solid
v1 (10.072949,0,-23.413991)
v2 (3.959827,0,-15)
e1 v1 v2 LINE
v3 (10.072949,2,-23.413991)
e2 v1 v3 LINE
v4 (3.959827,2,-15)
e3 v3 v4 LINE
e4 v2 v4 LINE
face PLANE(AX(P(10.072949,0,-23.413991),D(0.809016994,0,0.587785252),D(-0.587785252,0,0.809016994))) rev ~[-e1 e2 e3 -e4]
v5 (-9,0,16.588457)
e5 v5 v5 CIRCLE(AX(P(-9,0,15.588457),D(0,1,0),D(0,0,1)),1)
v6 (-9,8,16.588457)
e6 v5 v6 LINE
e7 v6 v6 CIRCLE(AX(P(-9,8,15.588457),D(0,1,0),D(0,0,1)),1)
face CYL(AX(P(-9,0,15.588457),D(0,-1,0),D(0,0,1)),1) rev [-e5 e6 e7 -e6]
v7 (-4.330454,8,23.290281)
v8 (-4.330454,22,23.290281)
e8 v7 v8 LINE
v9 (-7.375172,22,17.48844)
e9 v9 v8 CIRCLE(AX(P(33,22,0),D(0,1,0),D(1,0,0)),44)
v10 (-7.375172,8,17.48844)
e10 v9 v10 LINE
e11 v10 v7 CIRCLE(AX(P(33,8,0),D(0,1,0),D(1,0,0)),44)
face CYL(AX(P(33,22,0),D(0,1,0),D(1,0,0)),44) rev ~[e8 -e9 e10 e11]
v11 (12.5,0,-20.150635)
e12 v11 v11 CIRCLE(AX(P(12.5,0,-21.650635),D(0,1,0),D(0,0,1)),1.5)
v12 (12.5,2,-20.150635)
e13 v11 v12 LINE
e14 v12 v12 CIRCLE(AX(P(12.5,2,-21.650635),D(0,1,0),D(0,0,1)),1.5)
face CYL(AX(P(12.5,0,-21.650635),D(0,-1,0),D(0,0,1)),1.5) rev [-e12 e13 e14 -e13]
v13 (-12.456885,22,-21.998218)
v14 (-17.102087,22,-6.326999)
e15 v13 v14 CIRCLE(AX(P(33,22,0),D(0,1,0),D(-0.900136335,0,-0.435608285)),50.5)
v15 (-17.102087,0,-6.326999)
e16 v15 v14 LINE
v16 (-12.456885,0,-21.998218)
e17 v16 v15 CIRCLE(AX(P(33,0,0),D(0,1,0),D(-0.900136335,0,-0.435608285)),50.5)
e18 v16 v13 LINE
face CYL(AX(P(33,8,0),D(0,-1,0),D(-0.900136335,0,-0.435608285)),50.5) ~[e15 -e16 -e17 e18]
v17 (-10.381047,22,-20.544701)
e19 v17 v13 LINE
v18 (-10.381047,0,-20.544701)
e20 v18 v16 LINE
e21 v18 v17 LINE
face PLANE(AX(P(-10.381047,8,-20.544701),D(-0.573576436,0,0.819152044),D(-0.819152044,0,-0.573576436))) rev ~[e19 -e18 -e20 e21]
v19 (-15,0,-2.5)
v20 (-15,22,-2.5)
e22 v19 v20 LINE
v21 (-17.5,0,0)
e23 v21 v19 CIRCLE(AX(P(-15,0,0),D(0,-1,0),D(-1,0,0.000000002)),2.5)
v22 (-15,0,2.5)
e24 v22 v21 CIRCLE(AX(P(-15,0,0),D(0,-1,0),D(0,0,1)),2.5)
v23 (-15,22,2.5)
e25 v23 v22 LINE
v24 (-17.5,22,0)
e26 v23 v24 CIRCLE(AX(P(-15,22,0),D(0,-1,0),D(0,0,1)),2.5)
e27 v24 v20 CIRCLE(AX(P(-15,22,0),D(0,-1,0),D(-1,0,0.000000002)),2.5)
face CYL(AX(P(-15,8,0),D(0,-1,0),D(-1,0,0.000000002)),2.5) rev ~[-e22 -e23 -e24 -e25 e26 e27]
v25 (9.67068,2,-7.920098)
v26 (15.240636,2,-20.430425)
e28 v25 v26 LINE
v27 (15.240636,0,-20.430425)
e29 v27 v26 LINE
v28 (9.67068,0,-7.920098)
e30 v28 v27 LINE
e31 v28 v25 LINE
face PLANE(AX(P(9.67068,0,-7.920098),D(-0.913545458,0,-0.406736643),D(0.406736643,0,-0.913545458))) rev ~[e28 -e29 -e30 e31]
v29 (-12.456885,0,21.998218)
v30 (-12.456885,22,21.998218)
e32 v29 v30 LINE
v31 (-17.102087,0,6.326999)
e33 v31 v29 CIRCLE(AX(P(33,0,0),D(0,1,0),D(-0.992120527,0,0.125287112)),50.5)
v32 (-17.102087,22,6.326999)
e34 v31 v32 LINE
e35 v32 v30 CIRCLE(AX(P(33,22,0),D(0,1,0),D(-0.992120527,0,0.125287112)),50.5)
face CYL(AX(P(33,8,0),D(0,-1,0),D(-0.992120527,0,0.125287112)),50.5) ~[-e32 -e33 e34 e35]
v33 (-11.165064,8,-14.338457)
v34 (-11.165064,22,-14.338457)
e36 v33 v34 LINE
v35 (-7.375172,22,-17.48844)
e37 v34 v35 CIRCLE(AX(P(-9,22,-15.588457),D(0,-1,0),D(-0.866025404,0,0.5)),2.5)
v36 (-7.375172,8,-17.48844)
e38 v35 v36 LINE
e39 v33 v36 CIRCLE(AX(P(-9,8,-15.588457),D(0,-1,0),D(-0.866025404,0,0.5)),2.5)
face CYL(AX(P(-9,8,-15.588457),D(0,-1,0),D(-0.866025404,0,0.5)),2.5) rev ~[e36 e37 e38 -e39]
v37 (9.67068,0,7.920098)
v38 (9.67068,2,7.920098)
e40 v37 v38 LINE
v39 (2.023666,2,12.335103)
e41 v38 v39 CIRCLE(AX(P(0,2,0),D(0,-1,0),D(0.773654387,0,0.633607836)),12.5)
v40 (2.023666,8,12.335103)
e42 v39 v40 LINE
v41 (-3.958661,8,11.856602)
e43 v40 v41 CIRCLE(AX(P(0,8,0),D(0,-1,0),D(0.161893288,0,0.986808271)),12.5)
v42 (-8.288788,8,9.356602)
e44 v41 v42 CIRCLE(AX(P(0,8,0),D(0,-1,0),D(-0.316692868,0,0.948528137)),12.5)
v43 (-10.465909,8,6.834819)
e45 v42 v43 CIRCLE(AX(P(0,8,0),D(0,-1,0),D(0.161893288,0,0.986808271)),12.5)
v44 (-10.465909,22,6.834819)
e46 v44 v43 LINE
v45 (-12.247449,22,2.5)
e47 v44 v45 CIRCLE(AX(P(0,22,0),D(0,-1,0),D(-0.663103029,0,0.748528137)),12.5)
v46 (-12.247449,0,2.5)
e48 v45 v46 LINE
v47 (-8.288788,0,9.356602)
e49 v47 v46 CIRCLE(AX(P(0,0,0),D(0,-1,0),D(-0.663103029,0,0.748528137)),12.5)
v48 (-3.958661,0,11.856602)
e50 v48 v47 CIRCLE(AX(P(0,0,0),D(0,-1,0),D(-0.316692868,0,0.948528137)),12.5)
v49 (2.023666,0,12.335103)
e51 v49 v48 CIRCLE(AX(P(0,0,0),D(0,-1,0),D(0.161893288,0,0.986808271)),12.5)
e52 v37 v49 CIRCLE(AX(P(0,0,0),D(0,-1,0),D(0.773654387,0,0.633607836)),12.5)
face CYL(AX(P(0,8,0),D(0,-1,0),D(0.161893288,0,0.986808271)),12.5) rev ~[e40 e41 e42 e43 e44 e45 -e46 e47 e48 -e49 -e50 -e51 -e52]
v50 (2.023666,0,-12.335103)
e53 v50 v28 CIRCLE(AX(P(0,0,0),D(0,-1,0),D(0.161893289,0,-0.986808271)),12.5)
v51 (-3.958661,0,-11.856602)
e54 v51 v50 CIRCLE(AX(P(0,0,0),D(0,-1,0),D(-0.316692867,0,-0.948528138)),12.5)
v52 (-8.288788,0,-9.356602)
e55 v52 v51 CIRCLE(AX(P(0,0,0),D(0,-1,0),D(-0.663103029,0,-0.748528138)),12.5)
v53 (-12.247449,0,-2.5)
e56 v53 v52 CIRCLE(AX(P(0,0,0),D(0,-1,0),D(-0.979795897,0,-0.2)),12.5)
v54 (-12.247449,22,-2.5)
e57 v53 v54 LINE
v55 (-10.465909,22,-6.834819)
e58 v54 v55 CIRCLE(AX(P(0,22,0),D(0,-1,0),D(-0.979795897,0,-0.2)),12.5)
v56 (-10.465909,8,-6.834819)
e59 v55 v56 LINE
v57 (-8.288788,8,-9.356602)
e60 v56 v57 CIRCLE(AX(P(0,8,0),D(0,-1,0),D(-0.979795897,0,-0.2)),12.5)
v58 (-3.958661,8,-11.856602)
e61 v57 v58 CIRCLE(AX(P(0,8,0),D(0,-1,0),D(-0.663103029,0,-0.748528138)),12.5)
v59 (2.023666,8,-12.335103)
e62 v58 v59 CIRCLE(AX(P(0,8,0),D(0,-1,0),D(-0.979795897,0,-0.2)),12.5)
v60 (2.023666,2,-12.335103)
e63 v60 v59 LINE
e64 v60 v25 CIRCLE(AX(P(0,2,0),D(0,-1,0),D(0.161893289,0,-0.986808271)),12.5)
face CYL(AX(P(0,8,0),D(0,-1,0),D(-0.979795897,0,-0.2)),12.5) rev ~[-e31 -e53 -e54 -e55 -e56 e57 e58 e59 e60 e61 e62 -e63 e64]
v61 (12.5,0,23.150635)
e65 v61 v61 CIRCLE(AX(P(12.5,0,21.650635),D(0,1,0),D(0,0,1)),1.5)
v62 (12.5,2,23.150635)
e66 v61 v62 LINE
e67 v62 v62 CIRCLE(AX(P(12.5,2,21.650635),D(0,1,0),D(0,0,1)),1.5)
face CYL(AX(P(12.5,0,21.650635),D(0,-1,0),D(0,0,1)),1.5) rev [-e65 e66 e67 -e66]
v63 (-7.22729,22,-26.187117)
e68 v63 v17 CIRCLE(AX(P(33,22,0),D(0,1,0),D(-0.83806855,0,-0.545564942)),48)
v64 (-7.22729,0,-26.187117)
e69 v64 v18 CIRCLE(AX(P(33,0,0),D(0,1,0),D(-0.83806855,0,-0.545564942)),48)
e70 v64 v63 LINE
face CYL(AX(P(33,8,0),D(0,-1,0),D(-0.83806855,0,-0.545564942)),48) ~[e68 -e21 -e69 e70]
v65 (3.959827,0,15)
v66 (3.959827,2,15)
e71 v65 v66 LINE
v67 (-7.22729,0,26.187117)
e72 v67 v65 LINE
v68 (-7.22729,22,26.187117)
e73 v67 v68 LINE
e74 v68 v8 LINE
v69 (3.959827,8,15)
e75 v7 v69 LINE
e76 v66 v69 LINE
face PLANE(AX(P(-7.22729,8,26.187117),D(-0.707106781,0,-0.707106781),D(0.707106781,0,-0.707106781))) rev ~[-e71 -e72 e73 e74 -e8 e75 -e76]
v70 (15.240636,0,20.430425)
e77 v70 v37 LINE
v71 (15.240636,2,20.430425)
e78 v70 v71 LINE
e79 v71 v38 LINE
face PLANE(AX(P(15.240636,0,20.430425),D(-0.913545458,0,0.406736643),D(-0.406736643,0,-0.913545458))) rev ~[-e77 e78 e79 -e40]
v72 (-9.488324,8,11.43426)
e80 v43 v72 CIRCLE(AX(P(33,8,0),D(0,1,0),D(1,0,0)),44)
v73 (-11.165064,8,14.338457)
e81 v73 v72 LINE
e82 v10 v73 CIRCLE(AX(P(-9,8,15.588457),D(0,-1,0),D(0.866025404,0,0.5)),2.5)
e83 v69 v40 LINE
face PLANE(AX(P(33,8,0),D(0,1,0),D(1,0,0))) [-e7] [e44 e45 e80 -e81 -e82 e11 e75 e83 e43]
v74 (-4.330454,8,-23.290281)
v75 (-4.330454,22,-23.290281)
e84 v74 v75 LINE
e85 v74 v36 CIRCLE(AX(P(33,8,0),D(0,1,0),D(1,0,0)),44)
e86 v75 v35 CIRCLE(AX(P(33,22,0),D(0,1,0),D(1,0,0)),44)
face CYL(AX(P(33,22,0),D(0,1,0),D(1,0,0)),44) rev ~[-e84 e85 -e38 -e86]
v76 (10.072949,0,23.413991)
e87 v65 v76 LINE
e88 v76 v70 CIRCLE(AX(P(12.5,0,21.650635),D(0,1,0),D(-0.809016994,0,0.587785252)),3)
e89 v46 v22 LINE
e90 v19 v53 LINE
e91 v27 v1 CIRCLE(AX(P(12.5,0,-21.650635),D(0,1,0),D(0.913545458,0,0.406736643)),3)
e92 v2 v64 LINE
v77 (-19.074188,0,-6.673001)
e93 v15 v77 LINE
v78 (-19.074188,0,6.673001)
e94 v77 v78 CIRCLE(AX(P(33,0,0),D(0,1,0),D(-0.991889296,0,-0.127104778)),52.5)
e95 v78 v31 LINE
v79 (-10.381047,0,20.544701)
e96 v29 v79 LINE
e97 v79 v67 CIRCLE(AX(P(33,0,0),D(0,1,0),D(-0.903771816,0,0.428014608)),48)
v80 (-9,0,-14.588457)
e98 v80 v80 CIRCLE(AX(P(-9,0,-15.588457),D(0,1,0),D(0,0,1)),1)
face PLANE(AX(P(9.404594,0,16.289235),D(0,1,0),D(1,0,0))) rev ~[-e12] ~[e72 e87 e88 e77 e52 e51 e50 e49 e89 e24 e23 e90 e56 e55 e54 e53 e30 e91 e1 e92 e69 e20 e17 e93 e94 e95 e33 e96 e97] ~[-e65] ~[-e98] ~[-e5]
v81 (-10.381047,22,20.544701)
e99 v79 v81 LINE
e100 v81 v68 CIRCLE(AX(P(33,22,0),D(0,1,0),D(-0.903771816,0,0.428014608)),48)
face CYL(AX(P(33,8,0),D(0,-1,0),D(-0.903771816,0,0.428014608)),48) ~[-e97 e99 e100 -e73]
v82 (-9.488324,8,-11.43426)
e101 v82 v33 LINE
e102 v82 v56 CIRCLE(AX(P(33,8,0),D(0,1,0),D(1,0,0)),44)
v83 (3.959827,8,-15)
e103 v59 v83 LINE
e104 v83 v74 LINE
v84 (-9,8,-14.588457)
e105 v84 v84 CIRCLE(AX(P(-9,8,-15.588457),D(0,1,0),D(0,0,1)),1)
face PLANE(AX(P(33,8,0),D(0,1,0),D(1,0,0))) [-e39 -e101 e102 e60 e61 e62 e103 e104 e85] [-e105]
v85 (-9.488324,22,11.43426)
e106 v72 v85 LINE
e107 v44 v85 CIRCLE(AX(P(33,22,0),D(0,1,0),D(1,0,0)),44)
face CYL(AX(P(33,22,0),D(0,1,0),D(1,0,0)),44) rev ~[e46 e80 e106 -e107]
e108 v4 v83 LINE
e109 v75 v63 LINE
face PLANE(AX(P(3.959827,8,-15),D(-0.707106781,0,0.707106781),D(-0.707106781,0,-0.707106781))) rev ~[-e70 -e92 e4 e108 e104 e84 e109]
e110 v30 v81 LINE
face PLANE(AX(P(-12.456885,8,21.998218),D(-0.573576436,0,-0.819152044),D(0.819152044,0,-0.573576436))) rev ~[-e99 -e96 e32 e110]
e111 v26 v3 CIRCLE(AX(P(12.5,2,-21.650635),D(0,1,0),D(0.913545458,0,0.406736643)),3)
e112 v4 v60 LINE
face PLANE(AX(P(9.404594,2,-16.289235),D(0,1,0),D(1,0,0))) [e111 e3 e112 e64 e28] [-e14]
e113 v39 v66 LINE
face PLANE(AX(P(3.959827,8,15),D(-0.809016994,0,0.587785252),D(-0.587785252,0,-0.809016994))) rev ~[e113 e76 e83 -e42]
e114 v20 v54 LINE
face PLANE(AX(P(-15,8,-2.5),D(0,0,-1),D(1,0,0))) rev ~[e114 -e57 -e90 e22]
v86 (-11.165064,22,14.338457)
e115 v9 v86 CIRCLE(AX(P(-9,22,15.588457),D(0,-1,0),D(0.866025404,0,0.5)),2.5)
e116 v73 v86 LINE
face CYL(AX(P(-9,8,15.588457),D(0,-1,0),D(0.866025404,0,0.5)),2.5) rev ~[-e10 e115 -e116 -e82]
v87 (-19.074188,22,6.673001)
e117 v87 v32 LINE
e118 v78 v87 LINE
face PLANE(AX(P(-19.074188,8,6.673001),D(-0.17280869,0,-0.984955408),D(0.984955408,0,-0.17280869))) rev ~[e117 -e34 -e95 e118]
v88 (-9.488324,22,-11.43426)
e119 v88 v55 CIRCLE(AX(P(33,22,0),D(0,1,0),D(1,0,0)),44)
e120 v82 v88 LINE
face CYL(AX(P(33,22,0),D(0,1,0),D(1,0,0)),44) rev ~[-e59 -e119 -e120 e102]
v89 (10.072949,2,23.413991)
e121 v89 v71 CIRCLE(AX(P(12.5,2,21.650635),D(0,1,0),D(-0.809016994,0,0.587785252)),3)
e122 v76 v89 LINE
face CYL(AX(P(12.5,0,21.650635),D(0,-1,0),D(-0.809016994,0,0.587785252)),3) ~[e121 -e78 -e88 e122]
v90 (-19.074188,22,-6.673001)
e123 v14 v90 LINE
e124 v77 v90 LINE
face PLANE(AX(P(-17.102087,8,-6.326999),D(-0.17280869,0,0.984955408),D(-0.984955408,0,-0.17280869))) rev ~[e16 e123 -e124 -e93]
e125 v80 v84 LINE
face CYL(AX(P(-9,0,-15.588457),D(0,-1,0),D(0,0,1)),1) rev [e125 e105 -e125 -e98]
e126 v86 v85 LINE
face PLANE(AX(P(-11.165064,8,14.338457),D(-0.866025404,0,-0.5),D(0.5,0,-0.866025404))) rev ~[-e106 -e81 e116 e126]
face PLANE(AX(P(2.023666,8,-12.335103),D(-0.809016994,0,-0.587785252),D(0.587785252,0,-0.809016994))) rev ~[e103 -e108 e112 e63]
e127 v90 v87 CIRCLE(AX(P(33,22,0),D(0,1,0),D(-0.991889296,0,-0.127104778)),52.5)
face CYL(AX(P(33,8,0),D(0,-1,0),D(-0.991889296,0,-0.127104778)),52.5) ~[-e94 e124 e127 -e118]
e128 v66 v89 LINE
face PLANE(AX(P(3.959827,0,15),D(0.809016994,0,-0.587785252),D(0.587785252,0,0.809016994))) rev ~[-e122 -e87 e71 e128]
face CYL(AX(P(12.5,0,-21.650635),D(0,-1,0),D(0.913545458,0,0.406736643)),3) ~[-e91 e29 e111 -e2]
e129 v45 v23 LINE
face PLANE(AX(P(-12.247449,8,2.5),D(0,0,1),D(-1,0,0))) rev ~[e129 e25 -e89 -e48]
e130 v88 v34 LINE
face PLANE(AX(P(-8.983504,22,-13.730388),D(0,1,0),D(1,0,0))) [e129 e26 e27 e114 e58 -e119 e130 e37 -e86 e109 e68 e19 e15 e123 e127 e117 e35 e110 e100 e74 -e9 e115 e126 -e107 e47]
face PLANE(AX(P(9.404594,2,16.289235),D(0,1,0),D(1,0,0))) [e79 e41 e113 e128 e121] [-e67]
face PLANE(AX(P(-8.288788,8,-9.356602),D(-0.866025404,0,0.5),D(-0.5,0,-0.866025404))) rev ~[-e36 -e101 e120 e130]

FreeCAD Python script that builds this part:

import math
import FreeCAD as App
import Part
import Sketcher
Q = App.Units.Quantity

doc = App.newDocument("Part")
body = doc.addObject("PartDesign::Body", "Body")

sketch1 = body.newObject("Sketcher::SketchObject", "Sketch")
sketch1.AttachmentSupport = (doc.getObject("XZ_Plane"), [""])
sketch1.MapMode = "FlatFace"
sketch1.addGeometry([
    Part.ArcOfCircle(Part.Circle(App.Vector(-15, 0, 0), App.Vector(0, 0, 1), 2.5), math.radians(90), math.radians(180)),
    Part.ArcOfCircle(Part.Circle(App.Vector(-15, 0, 0), App.Vector(0, 0, 1), 2.5), math.radians(180), math.radians(270)),
    Part.LineSegment(App.Vector(-15, -2.5, 0), App.Vector(-12.2, -2.5, 0)),
    Part.ArcOfCircle(Part.Circle(App.Vector(0, 0, 0), App.Vector(0, 0, 1), 12.5), math.radians(-168), math.radians(-132)),
    Part.ArcOfCircle(Part.Circle(App.Vector(0, 0, 0), App.Vector(0, 0, 1), 12.5), math.radians(-132), math.radians(-108)),
    Part.ArcOfCircle(Part.Circle(App.Vector(0, 0, 0), App.Vector(0, 0, 1), 12.5), math.radians(-108), math.radians(-81)),
    Part.LineSegment(App.Vector(2, -12.3, 0), App.Vector(4, -15, 0)),
    Part.LineSegment(App.Vector(4, -15, 0), App.Vector(-7.2, -26.2, 0)),
    Part.ArcOfCircle(Part.Circle(App.Vector(33, 0, 0), App.Vector(0, 0, 1), 48), math.radians(-154.66), math.radians(-146.94)),
    Part.LineSegment(App.Vector(-10.4, -20.5, 0), App.Vector(-12.5, -22, 0)),
    Part.ArcOfCircle(Part.Circle(App.Vector(33, 0, 0), App.Vector(0, 0, 1), 50.5), math.radians(-172.8), math.radians(-154.18)),
    Part.LineSegment(App.Vector(-17.1, -6.3, 0), App.Vector(-19.1, -6.7, 0)),
    Part.ArcOfCircle(Part.Circle(App.Vector(33, 0, 0), App.Vector(0, 0, 1), 52.5), math.radians(172.7), math.radians(187.3)),
    Part.LineSegment(App.Vector(-19.1, 6.7, 0), App.Vector(-17.1, 6.3, 0)),
    Part.ArcOfCircle(Part.Circle(App.Vector(33, 0, 0), App.Vector(0, 0, 1), 50.5), math.radians(154.18), math.radians(172.8)),
    Part.LineSegment(App.Vector(-12.5, 22, 0), App.Vector(-10.4, 20.5, 0)),
    Part.ArcOfCircle(Part.Circle(App.Vector(33, 0, 0), App.Vector(0, 0, 1), 48), math.radians(146.94), math.radians(154.66)),
    Part.LineSegment(App.Vector(-7.2, 26.2, 0), App.Vector(4, 15, 0)),
    Part.LineSegment(App.Vector(4, 15, 0), App.Vector(2, 12.3, 0)),
    Part.ArcOfCircle(Part.Circle(App.Vector(0, 0, 0), App.Vector(0, 0, 1), 12.5), math.radians(81), math.radians(108)),
    Part.ArcOfCircle(Part.Circle(App.Vector(0, 0, 0), App.Vector(0, 0, 1), 12.5), math.radians(108), math.radians(132)),
    Part.ArcOfCircle(Part.Circle(App.Vector(0, 0, 0), App.Vector(0, 0, 1), 12.5), math.radians(132), math.radians(168)),
    Part.LineSegment(App.Vector(-12.2, 2.5, 0), App.Vector(-15, 2.5, 0)),
    Part.Circle(App.Vector(-9, 15.6, 0), App.Vector(0, 0, 1), 1),
    Part.Circle(App.Vector(-9, -15.6, 0), App.Vector(0, 0, 1), 1),
], False)
sketch1.addConstraint([
    Sketcher.Constraint("Tangent", 0, 2, 1, 1),
    Sketcher.Constraint("Tangent", 1, 2, 2, 1),
    Sketcher.Constraint("Coincident", 2, 2, 3, 1),
    Sketcher.Constraint("Tangent", 3, 2, 4, 1),
    Sketcher.Constraint("Tangent", 4, 2, 5, 1),
    Sketcher.Constraint("Coincident", 5, 2, 6, 1),
    Sketcher.Constraint("Coincident", 6, 2, 7, 1),
    Sketcher.Constraint("Coincident", 7, 2, 8, 2),
    Sketcher.Constraint("Coincident", 8, 1, 9, 1),
    Sketcher.Constraint("Coincident", 9, 2, 10, 2),
    Sketcher.Constraint("Coincident", 10, 1, 11, 1),
    Sketcher.Constraint("Coincident", 11, 2, 12, 2),
    Sketcher.Constraint("Coincident", 12, 1, 13, 1),
    Sketcher.Constraint("Coincident", 13, 2, 14, 2),
    Sketcher.Constraint("Coincident", 14, 1, 15, 1),
    Sketcher.Constraint("Coincident", 15, 2, 16, 2),
    Sketcher.Constraint("Coincident", 16, 1, 17, 1),
    Sketcher.Constraint("Coincident", 17, 2, 18, 1),
    Sketcher.Constraint("Coincident", 18, 2, 19, 1),
    Sketcher.Constraint("Tangent", 19, 2, 20, 1),
    Sketcher.Constraint("Tangent", 20, 2, 21, 1),
    Sketcher.Constraint("Coincident", 21, 2, 22, 1),
    Sketcher.Constraint("Tangent", 22, 2, 0, 1),
    Sketcher.Constraint("Horizontal", 2),
    Sketcher.Constraint("Horizontal", 22),
    Sketcher.Constraint("Coincident", 3, 3, -1, 1),
    Sketcher.Constraint("Coincident", 5, 3, -1, 1),
    Sketcher.Constraint("Coincident", 19, 3, -1, 1),
    Sketcher.Constraint("Coincident", 21, 3, -1, 1),
    Sketcher.Constraint("Coincident", 10, 3, 8, 3),
    Sketcher.Constraint("Coincident", 12, 3, 8, 3),
    Sketcher.Constraint("Coincident", 14, 3, 8, 3),
    Sketcher.Constraint("Coincident", 16, 3, 8, 3),
    Sketcher.Constraint("Equal", 0, 1),
    Sketcher.Constraint("Equal", 10, 14),
    Sketcher.Constraint("Equal", 8, 16),
    Sketcher.Constraint("Equal", 5, 19),
    Sketcher.Constraint("Equal", 23, 24),
    Sketcher.Constraint("Symmetric", 23, 3, 24, 3, -1),
    Sketcher.Constraint("Symmetric", 11, 2, 12, 1, -1),
    Sketcher.Constraint("Symmetric", 6, 2, 17, 2, -1),
    Sketcher.Constraint("PointOnObject", 0, 3, -1),
    Sketcher.Constraint("PointOnObject", 0, 2, -1),
    Sketcher.Constraint("Perpendicular", 7, 17),
    Sketcher.Constraint("Vertical", 10, 1, 13, 2),
    Sketcher.Constraint("Vertical", 9, 2, 14, 1),
    Sketcher.Constraint("Vertical", 8, 1, 15, 2),
    Sketcher.Constraint("Vertical", 7, 2, 16, 1),
    Sketcher.Constraint("Vertical", 5, 2, 18, 2),
    Sketcher.Constraint("Vertical", 4, 2, 19, 2),
    Sketcher.Constraint("Vertical", 3, 2, 20, 2),
    Sketcher.Constraint("Diameter", 23, 2.0),
    Sketcher.Constraint("Radius", 8, 48.0),
    Sketcher.Constraint("Radius", 0, 2.5),
    Sketcher.Constraint("Radius", 3, 12.5),
    Sketcher.Constraint("Radius", 10, 50.5),
    Sketcher.Constraint("Radius", 12, 52.5),
    Sketcher.Constraint("Angle", 6, Q("-54 deg")),
    Sketcher.Constraint("Angle", 9, Q("-145 deg")),
    Sketcher.Constraint("DistanceX", 0, 3, -1, 1, 15.0),
    Sketcher.Constraint("DistanceX", -1, 1, 8, 3, 33.0),
    Sketcher.Constraint("DistanceX", 23, 3, -1, 1, 9.0),
    Sketcher.Constraint("DistanceY", 6, 2, -1, 1, 15.0),
    Sketcher.Constraint("DistanceY", 4, 2, 3, 2, 2.5),
    Sketcher.Constraint("DistanceY", 10, 1, -1, 1, 6.326999),
    Sketcher.Constraint("DistanceY", 11, 2, -1, 1, 6.673001),
    Sketcher.Constraint("DistanceY", 3, 2, -1, 1, 9.356602),
    Sketcher.Constraint("DistanceY", 8, 1, -1, 1, 20.544701),
    Sketcher.Constraint("DistanceY", 5, 2, 4, 2, 0.478502),
    Sketcher.Constraint("DistanceY", 7, 2, 24, 3, 10.59866),
])
pad1 = body.newObject("PartDesign::Pad", "Pad")
pad1.Profile = sketch1
pad1.Length = 8
pad1.Reversed = True

sketch2 = body.newObject("Sketcher::SketchObject", "Sketch001")
sketch2.AttachmentSupport = (doc.getObject("XZ_Plane"), [""])
sketch2.MapMode = "FlatFace"
sketch2.addGeometry([
    Part.LineSegment(App.Vector(15.2, 20.4, 0), App.Vector(9.7, 7.9, 0)),
    Part.ArcOfCircle(Part.Circle(App.Vector(0, 0, 0), App.Vector(0, 0, 1), 12.5), math.radians(39), math.radians(81)),
    Part.LineSegment(App.Vector(2, 12.3, 0), App.Vector(4, 15, 0)),
    Part.LineSegment(App.Vector(4, 15, 0), App.Vector(10.1, 23.4, 0)),
    Part.ArcOfCircle(Part.Circle(App.Vector(12.5, 21.7, 0), App.Vector(0, 0, 1), 3), math.radians(-24), math.radians(144)),
    Part.Circle(App.Vector(12.5, 21.7, 0), App.Vector(0, 0, 1), 1.5),
    Part.LineSegment(App.Vector(4, -15, 0), App.Vector(2, -12.3, 0)),
    Part.ArcOfCircle(Part.Circle(App.Vector(0, 0, 0), App.Vector(0, 0, 1), 12.5), math.radians(-81), math.radians(-39)),
    Part.LineSegment(App.Vector(9.7, -7.9, 0), App.Vector(15.2, -20.4, 0)),
    Part.ArcOfCircle(Part.Circle(App.Vector(12.5, -21.7, 0), App.Vector(0, 0, 1), 3), math.radians(-144), math.radians(24)),
    Part.LineSegment(App.Vector(10.1, -23.4, 0), App.Vector(4, -15, 0)),
    Part.Circle(App.Vector(12.5, -21.7, 0), App.Vector(0, 0, 1), 1.5),
], False)
sketch2.addConstraint([
    Sketcher.Constraint("Coincident", 0, 2, 1, 1),
    Sketcher.Constraint("Coincident", 1, 2, 2, 1),
    Sketcher.Constraint("Coincident", 2, 2, 3, 1),
    Sketcher.Constraint("Tangent", 3, 2, 4, 2),
    Sketcher.Constraint("Tangent", 4, 1, 0, 1),
    Sketcher.Constraint("Coincident", 6, 2, 7, 1),
    Sketcher.Constraint("Coincident", 7, 2, 8, 1),
    Sketcher.Constraint("Tangent", 8, 2, 9, 2),
    Sketcher.Constraint("Tangent", 9, 1, 10, 1),
    Sketcher.Constraint("Coincident", 10, 2, 6, 1),
    Sketcher.Constraint("Coincident", 1, 3, -1, 1),
    Sketcher.Constraint("Coincident", 7, 3, -1, 1),
    Sketcher.Constraint("Coincident", 5, 3, 4, 3),
    Sketcher.Constraint("Coincident", 11, 3, 9, 3),
    Sketcher.Constraint("Equal", 1, 7),
    Sketcher.Constraint("Equal", 4, 9),
    Sketcher.Constraint("Equal", 5, 11),
    Sketcher.Constraint("Symmetric", 4, 3, 9, 3, -1),
    Sketcher.Constraint("Symmetric", 2, 2, 10, 2, -1),
    Sketcher.Constraint("Parallel", 2, 3),
    Sketcher.Constraint("Parallel", 6, 10),
    Sketcher.Constraint("Vertical", 0, 2, 7, 2),
    Sketcher.Constraint("Diameter", 5, 3.0),
    Sketcher.Constraint("Radius", 4, 3.0),
    Sketcher.Constraint("Radius", 1, 12.5),
    Sketcher.Constraint("Angle", 0, Q("-114 deg")),
    Sketcher.Constraint("Angle", 2, Q("54 deg")),
    Sketcher.Constraint("DistanceY", -1, 1, 2, 2, 15.0),
    Sketcher.Constraint("DistanceX", -1, 1, 4, 3, 12.5),
    Sketcher.Constraint("DistanceY", 6, 2, 0, 2, 20.255201),
])
pad2 = body.newObject("PartDesign::Pad", "Pad001")
pad2.Profile = sketch2
pad2.Length = 2
pad2.Reversed = True

sketch3 = body.newObject("Sketcher::SketchObject", "Sketch002")
sketch3.AttachmentSupport = (doc.getObject("XZ_Plane"), [""])
sketch3.MapMode = "FlatFace"
sketch3.addGeometry([
    Part.LineSegment(App.Vector(15.2, 20.4, 0), App.Vector(9.7, 7.9, 0)),
    Part.ArcOfCircle(Part.Circle(App.Vector(0, 0, 0), App.Vector(0, 0, 1), 12.5), math.radians(39), math.radians(81)),
    Part.LineSegment(App.Vector(2, 12.3, 0), App.Vector(4, 15, 0)),
    Part.LineSegment(App.Vector(4, 15, 0), App.Vector(10.1, 23.4, 0)),
    Part.ArcOfCircle(Part.Circle(App.Vector(12.5, 21.7, 0), App.Vector(0, 0, 1), 3), math.radians(-24), math.radians(144)),
    Part.Circle(App.Vector(12.5, 21.7, 0), App.Vector(0, 0, 1), 1.5),
    Part.LineSegment(App.Vector(4, -15, 0), App.Vector(2, -12.3, 0)),
    Part.ArcOfCircle(Part.Circle(App.Vector(0, 0, 0), App.Vector(0, 0, 1), 12.5), math.radians(-81), math.radians(-39)),
    Part.LineSegment(App.Vector(9.7, -7.9, 0), App.Vector(15.2, -20.4, 0)),
    Part.ArcOfCircle(Part.Circle(App.Vector(12.5, -21.7, 0), App.Vector(0, 0, 1), 3), math.radians(-144), math.radians(24)),
    Part.LineSegment(App.Vector(10.1, -23.4, 0), App.Vector(4, -15, 0)),
    Part.Circle(App.Vector(12.5, -21.7, 0), App.Vector(0, 0, 1), 1.5),
], False)
sketch3.addConstraint([
    Sketcher.Constraint("Coincident", 0, 2, 1, 1),
    Sketcher.Constraint("Coincident", 1, 2, 2, 1),
    Sketcher.Constraint("Coincident", 2, 2, 3, 1),
    Sketcher.Constraint("Tangent", 3, 2, 4, 2),
    Sketcher.Constraint("Tangent", 4, 1, 0, 1),
    Sketcher.Constraint("Coincident", 6, 2, 7, 1),
    Sketcher.Constraint("Coincident", 7, 2, 8, 1),
    Sketcher.Constraint("Tangent", 8, 2, 9, 2),
    Sketcher.Constraint("Tangent", 9, 1, 10, 1),
    Sketcher.Constraint("Coincident", 10, 2, 6, 1),
    Sketcher.Constraint("Coincident", 1, 3, -1, 1),
    Sketcher.Constraint("Coincident", 7, 3, -1, 1),
    Sketcher.Constraint("Coincident", 5, 3, 4, 3),
    Sketcher.Constraint("Coincident", 11, 3, 9, 3),
    Sketcher.Constraint("Equal", 1, 7),
    Sketcher.Constraint("Equal", 4, 9),
    Sketcher.Constraint("Equal", 5, 11),
    Sketcher.Constraint("Symmetric", 4, 3, 9, 3, -1),
    Sketcher.Constraint("Symmetric", 2, 2, 10, 2, -1),
    Sketcher.Constraint("Parallel", 2, 3),
    Sketcher.Constraint("Parallel", 6, 10),
    Sketcher.Constraint("Vertical", 0, 2, 7, 2),
    Sketcher.Constraint("Diameter", 5, 3.0),
    Sketcher.Constraint("Radius", 4, 3.0),
    Sketcher.Constraint("Radius", 1, 12.5),
    Sketcher.Constraint("Angle", 0, Q("-114 deg")),
    Sketcher.Constraint("Angle", 2, Q("54 deg")),
    Sketcher.Constraint("DistanceY", -1, 1, 2, 2, 15.0),
    Sketcher.Constraint("DistanceX", -1, 1, 4, 3, 12.5),
    Sketcher.Constraint("DistanceY", 6, 2, 0, 2, 20.255201),
])
pad3 = body.newObject("PartDesign::Pad", "Pad002")
pad3.Profile = sketch3
pad3.Length = 2
pad3.Reversed = True

sketch4 = body.newObject("Sketcher::SketchObject", "Sketch003")
sketch4.AttachmentSupport = (doc.getObject("XZ_Plane"), [""])
sketch4.MapMode = "FlatFace"
sketch4.AttachmentOffset = App.Placement(App.Vector(0, 0, -8), App.Rotation())
sketch4.addGeometry([
    Part.ArcOfCircle(Part.Circle(App.Vector(-15, 0, 0), App.Vector(0, 0, 1), 2.5), math.radians(180), math.radians(270)),
    Part.LineSegment(App.Vector(-15, -2.5, 0), App.Vector(-12.2, -2.5, 0)),
    Part.ArcOfCircle(Part.Circle(App.Vector(0, 0, 0), App.Vector(0, 0, 1), 12.5), math.radians(-168), math.radians(-132)),
    Part.LineSegment(App.Vector(-8.3, -9.4, 0), App.Vector(-11.2, -14.3, 0)),
    Part.ArcOfCircle(Part.Circle(App.Vector(-9, -15.6, 0), App.Vector(0, 0, 1), 2.5), math.radians(150), math.radians(330)),
    Part.LineSegment(App.Vector(-6.8, -16.8, 0), App.Vector(-4, -11.9, 0)),
    Part.ArcOfCircle(Part.Circle(App.Vector(0, 0, 0), App.Vector(0, 0, 1), 12.5), math.radians(-108), math.radians(-81)),
    Part.LineSegment(App.Vector(2, -12.3, 0), App.Vector(4, -15, 0)),
    Part.LineSegment(App.Vector(4, -15, 0), App.Vector(-7.2, -26.2, 0)),
    Part.ArcOfCircle(Part.Circle(App.Vector(33, 0, 0), App.Vector(0, 0, 1), 48), math.radians(-154.66), math.radians(-146.94)),
    Part.LineSegment(App.Vector(-10.4, -20.5, 0), App.Vector(-12.5, -22, 0)),
    Part.ArcOfCircle(Part.Circle(App.Vector(33, 0, 0), App.Vector(0, 0, 1), 50.5), math.radians(-172.8), math.radians(-154.18)),
    Part.LineSegment(App.Vector(-17.1, -6.3, 0), App.Vector(-19.1, -6.7, 0)),
    Part.ArcOfCircle(Part.Circle(App.Vector(33, 0, 0), App.Vector(0, 0, 1), 52.5), math.radians(172.7), math.radians(187.3)),
    Part.LineSegment(App.Vector(-19.1, 6.7, 0), App.Vector(-17.1, 6.3, 0)),
    Part.ArcOfCircle(Part.Circle(App.Vector(33, 0, 0), App.Vector(0, 0, 1), 50.5), math.radians(154.18), math.radians(172.8)),
    Part.LineSegment(App.Vector(-12.5, 22, 0), App.Vector(-10.4, 20.5, 0)),
    Part.ArcOfCircle(Part.Circle(App.Vector(33, 0, 0), App.Vector(0, 0, 1), 48), math.radians(146.94), math.radians(154.66)),
    Part.LineSegment(App.Vector(-7.2, 26.2, 0), App.Vector(4, 15, 0)),
    Part.LineSegment(App.Vector(4, 15, 0), App.Vector(2, 12.3, 0)),
    Part.ArcOfCircle(Part.Circle(App.Vector(0, 0, 0), App.Vector(0, 0, 1), 12.5), math.radians(81), math.radians(108)),
    Part.LineSegment(App.Vector(-4, 11.9, 0), App.Vector(-6.8, 16.8, 0)),
    Part.ArcOfCircle(Part.Circle(App.Vector(-9, 15.6, 0), App.Vector(0, 0, 1), 2.5), math.radians(30), math.radians(210)),
    Part.LineSegment(App.Vector(-11.2, 14.3, 0), App.Vector(-8.3, 9.4, 0)),
    Part.ArcOfCircle(Part.Circle(App.Vector(0, 0, 0), App.Vector(0, 0, 1), 12.5), math.radians(132), math.radians(168)),
    Part.LineSegment(App.Vector(-12.2, 2.5, 0), App.Vector(-15, 2.5, 0)),
    Part.ArcOfCircle(Part.Circle(App.Vector(-15, 0, 0), App.Vector(0, 0, 1), 2.5), math.radians(90), math.radians(180)),
], False)
sketch4.addConstraint([
    Sketcher.Constraint("Tangent", 0, 2, 1, 1),
    Sketcher.Constraint("Coincident", 1, 2, 2, 1),
    Sketcher.Constraint("Coincident", 2, 2, 3, 1),
    Sketcher.Constraint("Tangent", 3, 2, 4, 1),
    Sketcher.Constraint("Tangent", 4, 2, 5, 1),
    Sketcher.Constraint("Coincident", 5, 2, 6, 1),
    Sketcher.Constraint("Coincident", 6, 2, 7, 1),
    Sketcher.Constraint("Coincident", 7, 2, 8, 1),
    Sketcher.Constraint("Coincident", 8, 2, 9, 2),
    Sketcher.Constraint("Coincident", 9, 1, 10, 1),
    Sketcher.Constraint("Coincident", 10, 2, 11, 2),
    Sketcher.Constraint("Coincident", 11, 1, 12, 1),
    Sketcher.Constraint("Coincident", 12, 2, 13, 2),
    Sketcher.Constraint("Coincident", 13, 1, 14, 1),
    Sketcher.Constraint("Coincident", 14, 2, 15, 2),
    Sketcher.Constraint("Coincident", 15, 1, 16, 1),
    Sketcher.Constraint("Coincident", 16, 2, 17, 2),
    Sketcher.Constraint("Coincident", 17, 1, 18, 1),
    Sketcher.Constraint("Coincident", 18, 2, 19, 1),
    Sketcher.Constraint("Coincident", 19, 2, 20, 1),
    Sketcher.Constraint("Coincident", 20, 2, 21, 1),
    Sketcher.Constraint("Tangent", 21, 2, 22, 1),
    Sketcher.Constraint("Tangent", 22, 2, 23, 1),
    Sketcher.Constraint("Coincident", 23, 2, 24, 1),
    Sketcher.Constraint("Coincident", 24, 2, 25, 1),
    Sketcher.Constraint("Tangent", 25, 2, 26, 1),
    Sketcher.Constraint("Tangent", 26, 2, 0, 1),
    Sketcher.Constraint("Horizontal", 1),
    Sketcher.Constraint("Horizontal", 25),
    Sketcher.Constraint("Coincident", 2, 3, -1, 1),
    Sketcher.Constraint("Coincident", 6, 3, -1, 1),
    Sketcher.Constraint("Coincident", 20, 3, -1, 1),
    Sketcher.Constraint("Coincident", 24, 3, -1, 1),
    Sketcher.Constraint("Coincident", 11, 3, 9, 3),
    Sketcher.Constraint("Coincident", 13, 3, 9, 3),
    Sketcher.Constraint("Coincident", 15, 3, 9, 3),
    Sketcher.Constraint("Coincident", 17, 3, 9, 3),
    Sketcher.Constraint("Equal", 0, 4),
    Sketcher.Constraint("Equal", 2, 6),
    Sketcher.Constraint("Equal", 11, 15),
    Sketcher.Constraint("Equal", 9, 17),
    Sketcher.Constraint("Equal", 6, 20),
    Sketcher.Constraint("Equal", 4, 22),
    Sketcher.Constraint("Equal", 20, 24),
    Sketcher.Constraint("Equal", 22, 26),
    Sketcher.Constraint("Symmetric", 4, 3, 22, 3, -1),
    Sketcher.Constraint("Symmetric", 12, 2, 13, 1, -1),
    Sketcher.Constraint("Symmetric", 7, 2, 18, 2, -1),
    Sketcher.Constraint("PointOnObject", 0, 3, -1),
    Sketcher.Constraint("PointOnObject", 26, 2, -1),
    Sketcher.Constraint("Parallel", 3, 5),
    Sketcher.Constraint("Perpendicular", 8, 18),
    Sketcher.Constraint("Parallel", 21, 23),
    Sketcher.Constraint("Vertical", 11, 1, 14, 2),
    Sketcher.Constraint("Vertical", 10, 2, 15, 1),
    Sketcher.Constraint("Vertical", 9, 1, 16, 2),
    Sketcher.Constraint("Vertical", 8, 2, 17, 1),
    Sketcher.Constraint("Vertical", 6, 2, 19, 2),
    Sketcher.Constraint("Vertical", 5, 2, 20, 2),
    Sketcher.Constraint("Equal", 3, 5),
    Sketcher.Constraint("Radius", 9, 48.0),
    Sketcher.Constraint("Radius", 0, 2.5),
    Sketcher.Constraint("Radius", 2, 12.5),
    Sketcher.Constraint("Radius", 11, 50.5),
    Sketcher.Constraint("Radius", 13, 52.5),
    Sketcher.Constraint("Angle", 3, Q("-120 deg")),
    Sketcher.Constraint("Angle", 7, Q("-54 deg")),
    Sketcher.Constraint("Angle", 10, Q("-145 deg")),
    Sketcher.Constraint("DistanceX", 0, 3, -1, 1, 15.0),
    Sketcher.Constraint("DistanceX", 4, 3, -1, 1, 9.0),
    Sketcher.Constraint("DistanceX", -1, 1, 9, 3, 33.0),
    Sketcher.Constraint("DistanceY", 7, 2, -1, 1, 15.0),
    Sketcher.Constraint("DistanceY", 11, 1, 13, 1, 13.0),
    Sketcher.Constraint("DistanceY", 11, 1, -1, 1, 6.326999),
    Sketcher.Constraint("DistanceY", 9, 1, -1, 1, 20.544701),
    Sketcher.Constraint("DistanceY", 6, 2, 5, 2, 0.478502),
])
pad4 = body.newObject("PartDesign::Pad", "Pad003")
pad4.Profile = sketch4
pad4.Length = 14
pad4.Reversed = True

sketch5 = body.newObject("Sketcher::SketchObject", "Sketch004")
sketch5.AttachmentSupport = (doc.getObject("XZ_Plane"), [""])
sketch5.MapMode = "FlatFace"
sketch5.AttachmentOffset = App.Placement(App.Vector(0, 0, -22), App.Rotation())
sketch5.addGeometry(Part.Circle(App.Vector(33, 0, 0), App.Vector(0, 0, 1), 44), False)
sketch5.addConstraint([
    Sketcher.Constraint("PointOnObject", 0, 3, -1),
    Sketcher.Constraint("Diameter", 0, 88.0),
    Sketcher.Constraint("DistanceX", -1, 1, 0, 3, 33.0),
])
pocket1 = body.newObject("PartDesign::Pocket", "Pocket")
pocket1.Profile = sketch5
pocket1.Length = 14
pocket1.Reversed = True

doc.recompute()
